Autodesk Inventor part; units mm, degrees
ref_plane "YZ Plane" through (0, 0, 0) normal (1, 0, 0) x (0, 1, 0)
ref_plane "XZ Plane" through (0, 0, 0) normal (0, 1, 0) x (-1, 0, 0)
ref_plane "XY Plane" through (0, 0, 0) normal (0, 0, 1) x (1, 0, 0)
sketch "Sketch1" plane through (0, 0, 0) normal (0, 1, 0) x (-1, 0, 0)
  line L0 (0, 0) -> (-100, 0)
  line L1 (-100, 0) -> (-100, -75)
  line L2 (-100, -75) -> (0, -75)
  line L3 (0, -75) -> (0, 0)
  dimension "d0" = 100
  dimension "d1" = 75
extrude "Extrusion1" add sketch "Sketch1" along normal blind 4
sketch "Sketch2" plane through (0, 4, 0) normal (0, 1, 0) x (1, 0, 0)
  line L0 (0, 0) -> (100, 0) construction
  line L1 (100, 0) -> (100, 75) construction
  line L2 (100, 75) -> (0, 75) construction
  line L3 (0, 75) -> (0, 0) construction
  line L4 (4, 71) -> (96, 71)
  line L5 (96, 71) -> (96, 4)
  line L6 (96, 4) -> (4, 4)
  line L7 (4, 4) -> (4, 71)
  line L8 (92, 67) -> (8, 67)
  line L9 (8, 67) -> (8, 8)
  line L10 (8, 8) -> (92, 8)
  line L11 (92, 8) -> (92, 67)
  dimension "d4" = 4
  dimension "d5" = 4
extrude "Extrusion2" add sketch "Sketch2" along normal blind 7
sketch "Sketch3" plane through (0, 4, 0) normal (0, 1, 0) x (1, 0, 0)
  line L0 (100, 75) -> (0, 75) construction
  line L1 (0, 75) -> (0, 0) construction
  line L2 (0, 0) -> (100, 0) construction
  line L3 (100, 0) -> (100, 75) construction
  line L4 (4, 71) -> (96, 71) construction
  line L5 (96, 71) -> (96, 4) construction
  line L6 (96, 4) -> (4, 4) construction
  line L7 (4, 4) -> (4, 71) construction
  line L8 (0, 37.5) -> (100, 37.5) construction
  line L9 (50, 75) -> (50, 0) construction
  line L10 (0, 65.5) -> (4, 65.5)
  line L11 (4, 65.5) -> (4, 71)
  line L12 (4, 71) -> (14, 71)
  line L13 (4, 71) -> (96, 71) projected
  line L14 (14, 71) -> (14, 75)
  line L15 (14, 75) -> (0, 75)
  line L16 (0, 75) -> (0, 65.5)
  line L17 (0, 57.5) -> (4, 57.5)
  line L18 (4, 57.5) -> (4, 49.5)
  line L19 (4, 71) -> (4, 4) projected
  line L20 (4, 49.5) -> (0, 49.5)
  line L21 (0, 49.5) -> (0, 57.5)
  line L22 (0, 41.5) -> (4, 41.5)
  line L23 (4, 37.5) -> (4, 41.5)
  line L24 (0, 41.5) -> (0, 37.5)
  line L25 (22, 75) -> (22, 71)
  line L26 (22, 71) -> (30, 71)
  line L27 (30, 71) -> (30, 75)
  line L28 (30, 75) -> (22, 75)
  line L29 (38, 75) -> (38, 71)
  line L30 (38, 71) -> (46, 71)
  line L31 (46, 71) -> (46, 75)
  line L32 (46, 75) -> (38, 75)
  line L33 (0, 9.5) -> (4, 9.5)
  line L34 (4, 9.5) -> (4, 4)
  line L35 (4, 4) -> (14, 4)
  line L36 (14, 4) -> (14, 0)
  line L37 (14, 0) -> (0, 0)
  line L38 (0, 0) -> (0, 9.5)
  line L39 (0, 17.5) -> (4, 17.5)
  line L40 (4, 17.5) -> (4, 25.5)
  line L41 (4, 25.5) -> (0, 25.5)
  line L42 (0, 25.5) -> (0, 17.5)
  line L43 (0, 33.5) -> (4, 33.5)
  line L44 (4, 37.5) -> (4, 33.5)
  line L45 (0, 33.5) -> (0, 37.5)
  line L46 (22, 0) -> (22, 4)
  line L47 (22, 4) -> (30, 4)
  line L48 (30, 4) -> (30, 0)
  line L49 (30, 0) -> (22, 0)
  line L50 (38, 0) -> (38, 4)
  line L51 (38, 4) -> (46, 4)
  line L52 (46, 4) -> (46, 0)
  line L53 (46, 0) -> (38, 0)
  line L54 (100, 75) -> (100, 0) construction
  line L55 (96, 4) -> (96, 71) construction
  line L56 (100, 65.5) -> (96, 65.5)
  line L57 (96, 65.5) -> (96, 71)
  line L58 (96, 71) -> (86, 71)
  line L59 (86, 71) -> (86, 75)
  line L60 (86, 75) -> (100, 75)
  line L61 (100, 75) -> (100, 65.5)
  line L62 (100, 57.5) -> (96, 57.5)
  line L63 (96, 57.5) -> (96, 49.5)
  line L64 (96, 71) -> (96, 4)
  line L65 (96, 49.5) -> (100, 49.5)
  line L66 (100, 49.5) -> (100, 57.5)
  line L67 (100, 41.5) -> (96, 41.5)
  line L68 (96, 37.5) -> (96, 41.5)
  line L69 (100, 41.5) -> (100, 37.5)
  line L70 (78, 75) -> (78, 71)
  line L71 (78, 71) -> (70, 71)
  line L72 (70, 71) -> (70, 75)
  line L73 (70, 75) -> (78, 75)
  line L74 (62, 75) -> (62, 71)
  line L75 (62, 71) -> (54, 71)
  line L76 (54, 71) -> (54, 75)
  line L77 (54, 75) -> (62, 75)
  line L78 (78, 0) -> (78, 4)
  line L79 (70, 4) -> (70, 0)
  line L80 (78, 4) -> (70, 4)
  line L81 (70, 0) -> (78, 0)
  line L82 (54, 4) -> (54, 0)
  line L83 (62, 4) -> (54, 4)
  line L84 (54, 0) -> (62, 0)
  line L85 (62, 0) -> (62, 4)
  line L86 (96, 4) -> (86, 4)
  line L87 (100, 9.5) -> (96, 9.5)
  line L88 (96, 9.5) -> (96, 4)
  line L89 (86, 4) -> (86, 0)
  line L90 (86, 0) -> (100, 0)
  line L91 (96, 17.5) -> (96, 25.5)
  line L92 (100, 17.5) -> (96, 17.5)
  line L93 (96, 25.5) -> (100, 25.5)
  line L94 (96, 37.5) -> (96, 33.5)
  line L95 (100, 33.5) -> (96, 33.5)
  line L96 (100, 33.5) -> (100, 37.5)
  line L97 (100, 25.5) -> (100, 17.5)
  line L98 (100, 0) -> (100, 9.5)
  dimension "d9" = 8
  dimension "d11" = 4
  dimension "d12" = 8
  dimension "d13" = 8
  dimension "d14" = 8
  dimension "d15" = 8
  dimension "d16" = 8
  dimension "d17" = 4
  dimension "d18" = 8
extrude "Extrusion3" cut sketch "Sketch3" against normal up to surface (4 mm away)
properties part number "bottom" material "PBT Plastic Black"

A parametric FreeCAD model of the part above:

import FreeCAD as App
import Part
import Sketcher

V = App.Vector


def add_polygon(sketch, points):
    """Adds a closed chain of lines whose ends are joined by coincident constraints."""
    first, n = sketch.GeometryCount, len(points)
    for a, b in zip(points, points[1:] + points[:1]):
        sketch.addGeometry(Part.LineSegment(App.Vector(*a, 0), App.Vector(*b, 0)), False)
    for i in range(n):
        sketch.addConstraint(Sketcher.Constraint("Coincident", first + i, 2, first + (i + 1) % n, 1))

doc = App.newDocument("Part")
body = doc.addObject("PartDesign::Body", "Body")

# Sketch on XZ plane
sketch1 = body.newObject("Sketcher::SketchObject", "Sketch")
sketch1.AttachmentSupport = (doc.getObject("XZ_Plane"), [""])
sketch1.MapMode = "FlatFace"
add_polygon(sketch1, [(0, -75), (0, 0), (100, 0), (100, -75)])  # lines 0-3
sketch1.addConstraint(Sketcher.Constraint("Vertical", 0))
sketch1.addConstraint(Sketcher.Constraint("Horizontal", 1))
sketch1.addConstraint(Sketcher.Constraint("Vertical", 2))
sketch1.addConstraint(Sketcher.Constraint("Horizontal", 3))
sketch1.addConstraint(Sketcher.Constraint("Coincident", 0, 2, -1, 1))
sketch1.addConstraint(Sketcher.Constraint("DistanceX", 1, 1, 1, 2, 100.0))
sketch1.addConstraint(Sketcher.Constraint("DistanceY", 0, 1, 0, 2, 75.0))
pad1 = body.newObject("PartDesign::Pad", "Pad")
pad1.Profile = sketch1
pad1.Length = 4
pad1.Reversed = True

# Sketch on XZ plane
sketch2 = body.newObject("Sketcher::SketchObject", "Sketch001")
sketch2.AttachmentSupport = (doc.getObject("XZ_Plane"), [""])
sketch2.MapMode = "FlatFace"
sketch2.AttachmentOffset = App.Placement(V(0, 0, -4), App.Rotation())
add_polygon(sketch2, [(96, -71), (4, -71), (4, -4), (96, -4)])  # lines 0-3
add_polygon(sketch2, [(8, -67), (92, -67), (92, -8), (8, -8)])  # lines 4-7
sketch2.addConstraint(Sketcher.Constraint("Horizontal", 0))
sketch2.addConstraint(Sketcher.Constraint("Vertical", 1))
sketch2.addConstraint(Sketcher.Constraint("Horizontal", 2))
sketch2.addConstraint(Sketcher.Constraint("Vertical", 3))
sketch2.addConstraint(Sketcher.Constraint("Horizontal", 4))
sketch2.addConstraint(Sketcher.Constraint("Vertical", 5))
sketch2.addConstraint(Sketcher.Constraint("Horizontal", 6))
sketch2.addConstraint(Sketcher.Constraint("Vertical", 7))
sketch2.addConstraint(Sketcher.Constraint("DistanceX", -1, 1, 0, 2, 4.0))
sketch2.addConstraint(Sketcher.Constraint("DistanceY", 1, 2, -1, 1, 4.0))
sketch2.addConstraint(Sketcher.Constraint("DistanceX", 4, 2, 3, 2, 4.0))
sketch2.addConstraint(Sketcher.Constraint("DistanceY", 3, 2, 4, 2, 4.0))
sketch2.addConstraint(Sketcher.Constraint("DistanceY", 5, 2, 2, 2, 4.0))
sketch2.addConstraint(Sketcher.Constraint("DistanceX", 1, 2, 6, 2, 4.0))
sketch2.addConstraint(Sketcher.Constraint("DistanceX", 0, 2, 0, 1, 92.0))
sketch2.addConstraint(Sketcher.Constraint("DistanceY", 1, 1, 1, 2, 67.0))
pad2 = body.newObject("PartDesign::Pad", "Pad001")
pad2.Profile = sketch2
pad2.Length = 7
pad2.Reversed = True

# Sketch on XZ plane
sketch3 = body.newObject("Sketcher::SketchObject", "Sketch002")
sketch3.AttachmentSupport = (doc.getObject("XZ_Plane"), [""])
sketch3.MapMode = "FlatFace"
sketch3.AttachmentOffset = App.Placement(V(0, 0, -4), App.Rotation())
add_polygon(sketch3, [(0, -75), (0, -65.5), (4, -65.5), (4, -71), (14, -71), (14, -75)])  # lines 0-5
add_polygon(sketch3, [(100, -9.5), (96, -9.5), (96, -4), (86, -4), (86, 0), (100, 0)])  # lines 6-11
add_polygon(sketch3, [(100, -25.5), (96, -25.5), (96, -17.5), (100, -17.5)])  # lines 12-15
add_polygon(sketch3, [(100, -41.5), (96, -41.5), (96, -33.5), (100, -33.5)])  # lines 16-19
add_polygon(sketch3, [(100, -57.5), (96, -57.5), (96, -49.5), (100, -49.5)])  # lines 20-23
add_polygon(sketch3, [(86, -75), (86, -71), (96, -71), (96, -65.5), (100, -65.5), (100, -75)])  # lines 24-29
add_polygon(sketch3, [(70, -75), (70, -71), (78, -71), (78, -75)])  # lines 30-33
add_polygon(sketch3, [(54, -75), (54, -71), (62, -71), (62, -75)])  # lines 34-37
add_polygon(sketch3, [(38, -75), (38, -71), (46, -71), (46, -75)])  # lines 38-41
add_polygon(sketch3, [(22, -75), (22, -71), (30, -71), (30, -75)])  # lines 42-45
add_polygon(sketch3, [(4, -4), (4, -9.5), (0, -9.5), (0, 0), (14, 0), (14, -4)])  # lines 46-51
add_polygon(sketch3, [(4, -17.5), (4, -25.5), (0, -25.5), (0, -17.5)])  # lines 52-55
add_polygon(sketch3, [(4, -33.5), (4, -41.5), (0, -41.5), (0, -33.5)])  # lines 56-59
add_polygon(sketch3, [(4, -49.5), (4, -57.5), (0, -57.5), (0, -49.5)])  # lines 60-63
add_polygon(sketch3, [(22, -4), (22, 0), (30, 0), (30, -4)])  # lines 64-67
add_polygon(sketch3, [(38, -4), (38, 0), (46, 0), (46, -4)])  # lines 68-71
add_polygon(sketch3, [(70, 0), (78, 0), (78, -4), (70, -4)])  # lines 72-75
add_polygon(sketch3, [(62, -4), (54, -4), (54, 0), (62, 0)])  # lines 76-79
sketch3.addConstraint(Sketcher.Constraint("Vertical", 0))
sketch3.addConstraint(Sketcher.Constraint("Horizontal", 1))
sketch3.addConstraint(Sketcher.Constraint("Vertical", 2))
sketch3.addConstraint(Sketcher.Constraint("Horizontal", 3))
sketch3.addConstraint(Sketcher.Constraint("Vertical", 4))
sketch3.addConstraint(Sketcher.Constraint("Horizontal", 5))
sketch3.addConstraint(Sketcher.Constraint("Horizontal", 6))
sketch3.addConstraint(Sketcher.Constraint("Vertical", 7))
sketch3.addConstraint(Sketcher.Constraint("Horizontal", 8))
sketch3.addConstraint(Sketcher.Constraint("Vertical", 9))
sketch3.addConstraint(Sketcher.Constraint("Horizontal", 10))
sketch3.addConstraint(Sketcher.Constraint("Vertical", 11))
sketch3.addConstraint(Sketcher.Constraint("Horizontal", 12))
sketch3.addConstraint(Sketcher.Constraint("Vertical", 13))
sketch3.addConstraint(Sketcher.Constraint("Horizontal", 14))
sketch3.addConstraint(Sketcher.Constraint("Vertical", 15))
sketch3.addConstraint(Sketcher.Constraint("Horizontal", 16))
sketch3.addConstraint(Sketcher.Constraint("Vertical", 17))
sketch3.addConstraint(Sketcher.Constraint("Horizontal", 18))
sketch3.addConstraint(Sketcher.Constraint("Vertical", 19))
sketch3.addConstraint(Sketcher.Constraint("Horizontal", 20))
sketch3.addConstraint(Sketcher.Constraint("Vertical", 21))
sketch3.addConstraint(Sketcher.Constraint("Horizontal", 22))
sketch3.addConstraint(Sketcher.Constraint("Vertical", 23))
sketch3.addConstraint(Sketcher.Constraint("Vertical", 24))
sketch3.addConstraint(Sketcher.Constraint("Horizontal", 25))
sketch3.addConstraint(Sketcher.Constraint("Vertical", 26))
sketch3.addConstraint(Sketcher.Constraint("Horizontal", 27))
sketch3.addConstraint(Sketcher.Constraint("Vertical", 28))
sketch3.addConstraint(Sketcher.Constraint("Horizontal", 29))
sketch3.addConstraint(Sketcher.Constraint("Vertical", 30))
sketch3.addConstraint(Sketcher.Constraint("Horizontal", 31))
sketch3.addConstraint(Sketcher.Constraint("Vertical", 32))
sketch3.addConstraint(Sketcher.Constraint("Horizontal", 33))
sketch3.addConstraint(Sketcher.Constraint("Vertical", 34))
sketch3.addConstraint(Sketcher.Constraint("Horizontal", 35))
sketch3.addConstraint(Sketcher.Constraint("Vertical", 36))
sketch3.addConstraint(Sketcher.Constraint("Horizontal", 37))
sketch3.addConstraint(Sketcher.Constraint("Vertical", 38))
sketch3.addConstraint(Sketcher.Constraint("Horizontal", 39))
sketch3.addConstraint(Sketcher.Constraint("Vertical", 40))
sketch3.addConstraint(Sketcher.Constraint("Horizontal", 41))
sketch3.addConstraint(Sketcher.Constraint("Vertical", 42))
sketch3.addConstraint(Sketcher.Constraint("Horizontal", 43))
sketch3.addConstraint(Sketcher.Constraint("Vertical", 44))
sketch3.addConstraint(Sketcher.Constraint("Horizontal", 45))
sketch3.addConstraint(Sketcher.Constraint("Vertical", 46))
sketch3.addConstraint(Sketcher.Constraint("Horizontal", 47))
sketch3.addConstraint(Sketcher.Constraint("Vertical", 48))
sketch3.addConstraint(Sketcher.Constraint("Horizontal", 49))
sketch3.addConstraint(Sketcher.Constraint("Vertical", 50))
sketch3.addConstraint(Sketcher.Constraint("Horizontal", 51))
sketch3.addConstraint(Sketcher.Constraint("Vertical", 52))
sketch3.addConstraint(Sketcher.Constraint("Horizontal", 53))
sketch3.addConstraint(Sketcher.Constraint("Vertical", 54))
sketch3.addConstraint(Sketcher.Constraint("Horizontal", 55))
sketch3.addConstraint(Sketcher.Constraint("Vertical", 56))
sketch3.addConstraint(Sketcher.Constraint("Horizontal", 57))
sketch3.addConstraint(Sketcher.Constraint("Vertical", 58))
sketch3.addConstraint(Sketcher.Constraint("Horizontal", 59))
sketch3.addConstraint(Sketcher.Constraint("Vertical", 60))
sketch3.addConstraint(Sketcher.Constraint("Horizontal", 61))
sketch3.addConstraint(Sketcher.Constraint("Vertical", 62))
sketch3.addConstraint(Sketcher.Constraint("Horizontal", 63))
sketch3.addConstraint(Sketcher.Constraint("Vertical", 64))
sketch3.addConstraint(Sketcher.Constraint("Horizontal", 65))
sketch3.addConstraint(Sketcher.Constraint("Vertical", 66))
sketch3.addConstraint(Sketcher.Constraint("Horizontal", 67))
sketch3.addConstraint(Sketcher.Constraint("Vertical", 68))
sketch3.addConstraint(Sketcher.Constraint("Horizontal", 69))
sketch3.addConstraint(Sketcher.Constraint("Vertical", 70))
sketch3.addConstraint(Sketcher.Constraint("Horizontal", 71))
sketch3.addConstraint(Sketcher.Constraint("Horizontal", 72))
sketch3.addConstraint(Sketcher.Constraint("Vertical", 73))
sketch3.addConstraint(Sketcher.Constraint("Horizontal", 74))
sketch3.addConstraint(Sketcher.Constraint("Vertical", 75))
sketch3.addConstraint(Sketcher.Constraint("Horizontal", 76))
sketch3.addConstraint(Sketcher.Constraint("Vertical", 77))
sketch3.addConstraint(Sketcher.Constraint("Horizontal", 78))
sketch3.addConstraint(Sketcher.Constraint("Vertical", 79))
sketch3.addConstraint(Sketcher.Constraint("Coincident", 48, 2, -1, 1))
sketch3.addConstraint(Sketcher.Constraint("PointOnObject", 0, 2, -2))
sketch3.addConstraint(Sketcher.Constraint("PointOnObject", 9, 2, -1))
sketch3.addConstraint(Sketcher.Constraint("PointOnObject", 53, 2, -2))
sketch3.addConstraint(Sketcher.Constraint("PointOnObject", 57, 2, -2))
sketch3.addConstraint(Sketcher.Constraint("PointOnObject", 61, 2, -2))
sketch3.addConstraint(Sketcher.Constraint("PointOnObject", 64, 2, -1))
sketch3.addConstraint(Sketcher.Constraint("PointOnObject", 68, 2, -1))
sketch3.addConstraint(Sketcher.Constraint("PointOnObject", 72, 2, -1))
sketch3.addConstraint(Sketcher.Constraint("PointOnObject", 77, 2, -1))
sketch3.addConstraint(Sketcher.Constraint("Horizontal", 3, 2, 24, 2))
sketch3.addConstraint(Sketcher.Constraint("Horizontal", 1, 2, 26, 2))
sketch3.addConstraint(Sketcher.Constraint("Horizontal", 5, 2, 28, 2))
sketch3.addConstraint(Sketcher.Constraint("Horizontal", 25, 2, 30, 2))
sketch3.addConstraint(Sketcher.Constraint("Horizontal", 29, 2, 32, 2))
sketch3.addConstraint(Sketcher.Constraint("Horizontal", 31, 2, 34, 2))
sketch3.addConstraint(Sketcher.Constraint("Horizontal", 33, 2, 36, 2))
sketch3.addConstraint(Sketcher.Constraint("Horizontal", 35, 2, 38, 2))
sketch3.addConstraint(Sketcher.Constraint("Horizontal", 37, 2, 40, 2))
sketch3.addConstraint(Sketcher.Constraint("Horizontal", 39, 2, 42, 2))
sketch3.addConstraint(Sketcher.Constraint("Horizontal", 41, 2, 44, 2))
sketch3.addConstraint(Sketcher.Constraint("Horizontal", 11, 2, 46, 2))
sketch3.addConstraint(Sketcher.Constraint("Horizontal", 8, 2, 50, 2))
sketch3.addConstraint(Sketcher.Constraint("Horizontal", 15, 2, 52, 2))
sketch3.addConstraint(Sketcher.Constraint("Horizontal", 14, 2, 54, 2))
sketch3.addConstraint(Sketcher.Constraint("Horizontal", 19, 2, 56, 2))
sketch3.addConstraint(Sketcher.Constraint("Horizontal", 18, 2, 58, 2))
sketch3.addConstraint(Sketcher.Constraint("Horizontal", 23, 2, 60, 2))
sketch3.addConstraint(Sketcher.Constraint("Horizontal", 22, 2, 62, 2))
sketch3.addConstraint(Sketcher.Constraint("Horizontal", 51, 2, 66, 2))
sketch3.addConstraint(Sketcher.Constraint("Horizontal", 67, 2, 70, 2))
sketch3.addConstraint(Sketcher.Constraint("Horizontal", 71, 2, 73, 2))
sketch3.addConstraint(Sketcher.Constraint("Horizontal", 74, 2, 76, 2))
sketch3.addConstraint(Sketcher.Constraint("Vertical", 7, 2, 12, 2))
sketch3.addConstraint(Sketcher.Constraint("Vertical", 11, 2, 14, 2))
sketch3.addConstraint(Sketcher.Constraint("Vertical", 13, 2, 16, 2))
sketch3.addConstraint(Sketcher.Constraint("Vertical", 15, 2, 18, 2))
sketch3.addConstraint(Sketcher.Constraint("Vertical", 17, 2, 20, 2))
sketch3.addConstraint(Sketcher.Constraint("Vertical", 19, 2, 22, 2))
sketch3.addConstraint(Sketcher.Constraint("Vertical", 9, 2, 24, 2))
sketch3.addConstraint(Sketcher.Constraint("Vertical", 21, 2, 25, 2))
sketch3.addConstraint(Sketcher.Constraint("Vertical", 23, 2, 27, 2))
sketch3.addConstraint(Sketcher.Constraint("Vertical", 2, 2, 46, 2))
sketch3.addConstraint(Sketcher.Constraint("Vertical", 4, 2, 49, 2))
sketch3.addConstraint(Sketcher.Constraint("Vertical", 51, 2, 52, 2))
sketch3.addConstraint(Sketcher.Constraint("Vertical", 55, 2, 56, 2))
sketch3.addConstraint(Sketcher.Constraint("Vertical", 59, 2, 60, 2))
sketch3.addConstraint(Sketcher.Constraint("Vertical", 45, 2, 64, 2))
sketch3.addConstraint(Sketcher.Constraint("Vertical", 44, 2, 65, 2))
sketch3.addConstraint(Sketcher.Constraint("Vertical", 41, 2, 68, 2))
sketch3.addConstraint(Sketcher.Constraint("Vertical", 40, 2, 69, 2))
sketch3.addConstraint(Sketcher.Constraint("Vertical", 32, 2, 72, 2))
sketch3.addConstraint(Sketcher.Constraint("Vertical", 33, 2, 74, 2))
sketch3.addConstraint(Sketcher.Constraint("Vertical", 37, 2, 76, 2))
sketch3.addConstraint(Sketcher.Constraint("Vertical", 36, 2, 78, 2))
sketch3.addConstraint(Sketcher.Constraint("Equal", 1, 6))
sketch3.addConstraint(Sketcher.Constraint("Equal", 3, 8))
sketch3.addConstraint(Sketcher.Constraint("Equal", 33, 35))
sketch3.addConstraint(Sketcher.Constraint("Equal", 37, 39))
sketch3.addConstraint(Sketcher.Constraint("Equal", 41, 43))
sketch3.addConstraint(Sketcher.Constraint("Equal", 63, 4))
sketch3.addConstraint(Sketcher.Constraint("Equal", 2, 7))
sketch3.addConstraint(Sketcher.Constraint("Equal", 4, 9))
sketch3.addConstraint(Sketcher.Constraint("Equal", 78, 13))
sketch3.addConstraint(Sketcher.Constraint("Equal", 15, 17))
sketch3.addConstraint(Sketcher.Constraint("Equal", 19, 21))
sketch3.addConstraint(Sketcher.Constraint("DistanceX", 1, 1, 1, 2, 4.0))
sketch3.addConstraint(Sketcher.Constraint("DistanceX", 31, 1, 31, 2, 8.0))
sketch3.addConstraint(Sketcher.Constraint("DistanceX", 3, 1, 3, 2, 10.0))
sketch3.addConstraint(Sketcher.Constraint("DistanceY", 0, 1, 0, 2, 9.5))
sketch3.addConstraint(Sketcher.Constraint("DistanceY", 2, 2, -1, 1, 71.0))
sketch3.addConstraint(Sketcher.Constraint("DistanceX", -1, 1, 6, 2, 96.0))
sketch3.addConstraint(Sketcher.Constraint("DistanceX", -1, 1, 30, 2, 70.0))
sketch3.addConstraint(Sketcher.Constraint("DistanceX", -1, 1, 34, 2, 54.0))
sketch3.addConstraint(Sketcher.Constraint("DistanceX", -1, 1, 38, 2, 38.0))
sketch3.addConstraint(Sketcher.Constraint("DistanceX", -1, 1, 42, 2, 22.0))
sketch3.addConstraint(Sketcher.Constraint("DistanceY", 12, 2, -1, 1, 25.5))
sketch3.addConstraint(Sketcher.Constraint("DistanceY", 16, 2, -1, 1, 41.5))
sketch3.addConstraint(Sketcher.Constraint("DistanceY", 20, 2, -1, 1, 57.5))
pocket1 = body.newObject("PartDesign::Pocket", "Pocket")
pocket1.Profile = sketch3
pocket1.Length = 4
pocket1.Reversed = True

doc.recompute()
